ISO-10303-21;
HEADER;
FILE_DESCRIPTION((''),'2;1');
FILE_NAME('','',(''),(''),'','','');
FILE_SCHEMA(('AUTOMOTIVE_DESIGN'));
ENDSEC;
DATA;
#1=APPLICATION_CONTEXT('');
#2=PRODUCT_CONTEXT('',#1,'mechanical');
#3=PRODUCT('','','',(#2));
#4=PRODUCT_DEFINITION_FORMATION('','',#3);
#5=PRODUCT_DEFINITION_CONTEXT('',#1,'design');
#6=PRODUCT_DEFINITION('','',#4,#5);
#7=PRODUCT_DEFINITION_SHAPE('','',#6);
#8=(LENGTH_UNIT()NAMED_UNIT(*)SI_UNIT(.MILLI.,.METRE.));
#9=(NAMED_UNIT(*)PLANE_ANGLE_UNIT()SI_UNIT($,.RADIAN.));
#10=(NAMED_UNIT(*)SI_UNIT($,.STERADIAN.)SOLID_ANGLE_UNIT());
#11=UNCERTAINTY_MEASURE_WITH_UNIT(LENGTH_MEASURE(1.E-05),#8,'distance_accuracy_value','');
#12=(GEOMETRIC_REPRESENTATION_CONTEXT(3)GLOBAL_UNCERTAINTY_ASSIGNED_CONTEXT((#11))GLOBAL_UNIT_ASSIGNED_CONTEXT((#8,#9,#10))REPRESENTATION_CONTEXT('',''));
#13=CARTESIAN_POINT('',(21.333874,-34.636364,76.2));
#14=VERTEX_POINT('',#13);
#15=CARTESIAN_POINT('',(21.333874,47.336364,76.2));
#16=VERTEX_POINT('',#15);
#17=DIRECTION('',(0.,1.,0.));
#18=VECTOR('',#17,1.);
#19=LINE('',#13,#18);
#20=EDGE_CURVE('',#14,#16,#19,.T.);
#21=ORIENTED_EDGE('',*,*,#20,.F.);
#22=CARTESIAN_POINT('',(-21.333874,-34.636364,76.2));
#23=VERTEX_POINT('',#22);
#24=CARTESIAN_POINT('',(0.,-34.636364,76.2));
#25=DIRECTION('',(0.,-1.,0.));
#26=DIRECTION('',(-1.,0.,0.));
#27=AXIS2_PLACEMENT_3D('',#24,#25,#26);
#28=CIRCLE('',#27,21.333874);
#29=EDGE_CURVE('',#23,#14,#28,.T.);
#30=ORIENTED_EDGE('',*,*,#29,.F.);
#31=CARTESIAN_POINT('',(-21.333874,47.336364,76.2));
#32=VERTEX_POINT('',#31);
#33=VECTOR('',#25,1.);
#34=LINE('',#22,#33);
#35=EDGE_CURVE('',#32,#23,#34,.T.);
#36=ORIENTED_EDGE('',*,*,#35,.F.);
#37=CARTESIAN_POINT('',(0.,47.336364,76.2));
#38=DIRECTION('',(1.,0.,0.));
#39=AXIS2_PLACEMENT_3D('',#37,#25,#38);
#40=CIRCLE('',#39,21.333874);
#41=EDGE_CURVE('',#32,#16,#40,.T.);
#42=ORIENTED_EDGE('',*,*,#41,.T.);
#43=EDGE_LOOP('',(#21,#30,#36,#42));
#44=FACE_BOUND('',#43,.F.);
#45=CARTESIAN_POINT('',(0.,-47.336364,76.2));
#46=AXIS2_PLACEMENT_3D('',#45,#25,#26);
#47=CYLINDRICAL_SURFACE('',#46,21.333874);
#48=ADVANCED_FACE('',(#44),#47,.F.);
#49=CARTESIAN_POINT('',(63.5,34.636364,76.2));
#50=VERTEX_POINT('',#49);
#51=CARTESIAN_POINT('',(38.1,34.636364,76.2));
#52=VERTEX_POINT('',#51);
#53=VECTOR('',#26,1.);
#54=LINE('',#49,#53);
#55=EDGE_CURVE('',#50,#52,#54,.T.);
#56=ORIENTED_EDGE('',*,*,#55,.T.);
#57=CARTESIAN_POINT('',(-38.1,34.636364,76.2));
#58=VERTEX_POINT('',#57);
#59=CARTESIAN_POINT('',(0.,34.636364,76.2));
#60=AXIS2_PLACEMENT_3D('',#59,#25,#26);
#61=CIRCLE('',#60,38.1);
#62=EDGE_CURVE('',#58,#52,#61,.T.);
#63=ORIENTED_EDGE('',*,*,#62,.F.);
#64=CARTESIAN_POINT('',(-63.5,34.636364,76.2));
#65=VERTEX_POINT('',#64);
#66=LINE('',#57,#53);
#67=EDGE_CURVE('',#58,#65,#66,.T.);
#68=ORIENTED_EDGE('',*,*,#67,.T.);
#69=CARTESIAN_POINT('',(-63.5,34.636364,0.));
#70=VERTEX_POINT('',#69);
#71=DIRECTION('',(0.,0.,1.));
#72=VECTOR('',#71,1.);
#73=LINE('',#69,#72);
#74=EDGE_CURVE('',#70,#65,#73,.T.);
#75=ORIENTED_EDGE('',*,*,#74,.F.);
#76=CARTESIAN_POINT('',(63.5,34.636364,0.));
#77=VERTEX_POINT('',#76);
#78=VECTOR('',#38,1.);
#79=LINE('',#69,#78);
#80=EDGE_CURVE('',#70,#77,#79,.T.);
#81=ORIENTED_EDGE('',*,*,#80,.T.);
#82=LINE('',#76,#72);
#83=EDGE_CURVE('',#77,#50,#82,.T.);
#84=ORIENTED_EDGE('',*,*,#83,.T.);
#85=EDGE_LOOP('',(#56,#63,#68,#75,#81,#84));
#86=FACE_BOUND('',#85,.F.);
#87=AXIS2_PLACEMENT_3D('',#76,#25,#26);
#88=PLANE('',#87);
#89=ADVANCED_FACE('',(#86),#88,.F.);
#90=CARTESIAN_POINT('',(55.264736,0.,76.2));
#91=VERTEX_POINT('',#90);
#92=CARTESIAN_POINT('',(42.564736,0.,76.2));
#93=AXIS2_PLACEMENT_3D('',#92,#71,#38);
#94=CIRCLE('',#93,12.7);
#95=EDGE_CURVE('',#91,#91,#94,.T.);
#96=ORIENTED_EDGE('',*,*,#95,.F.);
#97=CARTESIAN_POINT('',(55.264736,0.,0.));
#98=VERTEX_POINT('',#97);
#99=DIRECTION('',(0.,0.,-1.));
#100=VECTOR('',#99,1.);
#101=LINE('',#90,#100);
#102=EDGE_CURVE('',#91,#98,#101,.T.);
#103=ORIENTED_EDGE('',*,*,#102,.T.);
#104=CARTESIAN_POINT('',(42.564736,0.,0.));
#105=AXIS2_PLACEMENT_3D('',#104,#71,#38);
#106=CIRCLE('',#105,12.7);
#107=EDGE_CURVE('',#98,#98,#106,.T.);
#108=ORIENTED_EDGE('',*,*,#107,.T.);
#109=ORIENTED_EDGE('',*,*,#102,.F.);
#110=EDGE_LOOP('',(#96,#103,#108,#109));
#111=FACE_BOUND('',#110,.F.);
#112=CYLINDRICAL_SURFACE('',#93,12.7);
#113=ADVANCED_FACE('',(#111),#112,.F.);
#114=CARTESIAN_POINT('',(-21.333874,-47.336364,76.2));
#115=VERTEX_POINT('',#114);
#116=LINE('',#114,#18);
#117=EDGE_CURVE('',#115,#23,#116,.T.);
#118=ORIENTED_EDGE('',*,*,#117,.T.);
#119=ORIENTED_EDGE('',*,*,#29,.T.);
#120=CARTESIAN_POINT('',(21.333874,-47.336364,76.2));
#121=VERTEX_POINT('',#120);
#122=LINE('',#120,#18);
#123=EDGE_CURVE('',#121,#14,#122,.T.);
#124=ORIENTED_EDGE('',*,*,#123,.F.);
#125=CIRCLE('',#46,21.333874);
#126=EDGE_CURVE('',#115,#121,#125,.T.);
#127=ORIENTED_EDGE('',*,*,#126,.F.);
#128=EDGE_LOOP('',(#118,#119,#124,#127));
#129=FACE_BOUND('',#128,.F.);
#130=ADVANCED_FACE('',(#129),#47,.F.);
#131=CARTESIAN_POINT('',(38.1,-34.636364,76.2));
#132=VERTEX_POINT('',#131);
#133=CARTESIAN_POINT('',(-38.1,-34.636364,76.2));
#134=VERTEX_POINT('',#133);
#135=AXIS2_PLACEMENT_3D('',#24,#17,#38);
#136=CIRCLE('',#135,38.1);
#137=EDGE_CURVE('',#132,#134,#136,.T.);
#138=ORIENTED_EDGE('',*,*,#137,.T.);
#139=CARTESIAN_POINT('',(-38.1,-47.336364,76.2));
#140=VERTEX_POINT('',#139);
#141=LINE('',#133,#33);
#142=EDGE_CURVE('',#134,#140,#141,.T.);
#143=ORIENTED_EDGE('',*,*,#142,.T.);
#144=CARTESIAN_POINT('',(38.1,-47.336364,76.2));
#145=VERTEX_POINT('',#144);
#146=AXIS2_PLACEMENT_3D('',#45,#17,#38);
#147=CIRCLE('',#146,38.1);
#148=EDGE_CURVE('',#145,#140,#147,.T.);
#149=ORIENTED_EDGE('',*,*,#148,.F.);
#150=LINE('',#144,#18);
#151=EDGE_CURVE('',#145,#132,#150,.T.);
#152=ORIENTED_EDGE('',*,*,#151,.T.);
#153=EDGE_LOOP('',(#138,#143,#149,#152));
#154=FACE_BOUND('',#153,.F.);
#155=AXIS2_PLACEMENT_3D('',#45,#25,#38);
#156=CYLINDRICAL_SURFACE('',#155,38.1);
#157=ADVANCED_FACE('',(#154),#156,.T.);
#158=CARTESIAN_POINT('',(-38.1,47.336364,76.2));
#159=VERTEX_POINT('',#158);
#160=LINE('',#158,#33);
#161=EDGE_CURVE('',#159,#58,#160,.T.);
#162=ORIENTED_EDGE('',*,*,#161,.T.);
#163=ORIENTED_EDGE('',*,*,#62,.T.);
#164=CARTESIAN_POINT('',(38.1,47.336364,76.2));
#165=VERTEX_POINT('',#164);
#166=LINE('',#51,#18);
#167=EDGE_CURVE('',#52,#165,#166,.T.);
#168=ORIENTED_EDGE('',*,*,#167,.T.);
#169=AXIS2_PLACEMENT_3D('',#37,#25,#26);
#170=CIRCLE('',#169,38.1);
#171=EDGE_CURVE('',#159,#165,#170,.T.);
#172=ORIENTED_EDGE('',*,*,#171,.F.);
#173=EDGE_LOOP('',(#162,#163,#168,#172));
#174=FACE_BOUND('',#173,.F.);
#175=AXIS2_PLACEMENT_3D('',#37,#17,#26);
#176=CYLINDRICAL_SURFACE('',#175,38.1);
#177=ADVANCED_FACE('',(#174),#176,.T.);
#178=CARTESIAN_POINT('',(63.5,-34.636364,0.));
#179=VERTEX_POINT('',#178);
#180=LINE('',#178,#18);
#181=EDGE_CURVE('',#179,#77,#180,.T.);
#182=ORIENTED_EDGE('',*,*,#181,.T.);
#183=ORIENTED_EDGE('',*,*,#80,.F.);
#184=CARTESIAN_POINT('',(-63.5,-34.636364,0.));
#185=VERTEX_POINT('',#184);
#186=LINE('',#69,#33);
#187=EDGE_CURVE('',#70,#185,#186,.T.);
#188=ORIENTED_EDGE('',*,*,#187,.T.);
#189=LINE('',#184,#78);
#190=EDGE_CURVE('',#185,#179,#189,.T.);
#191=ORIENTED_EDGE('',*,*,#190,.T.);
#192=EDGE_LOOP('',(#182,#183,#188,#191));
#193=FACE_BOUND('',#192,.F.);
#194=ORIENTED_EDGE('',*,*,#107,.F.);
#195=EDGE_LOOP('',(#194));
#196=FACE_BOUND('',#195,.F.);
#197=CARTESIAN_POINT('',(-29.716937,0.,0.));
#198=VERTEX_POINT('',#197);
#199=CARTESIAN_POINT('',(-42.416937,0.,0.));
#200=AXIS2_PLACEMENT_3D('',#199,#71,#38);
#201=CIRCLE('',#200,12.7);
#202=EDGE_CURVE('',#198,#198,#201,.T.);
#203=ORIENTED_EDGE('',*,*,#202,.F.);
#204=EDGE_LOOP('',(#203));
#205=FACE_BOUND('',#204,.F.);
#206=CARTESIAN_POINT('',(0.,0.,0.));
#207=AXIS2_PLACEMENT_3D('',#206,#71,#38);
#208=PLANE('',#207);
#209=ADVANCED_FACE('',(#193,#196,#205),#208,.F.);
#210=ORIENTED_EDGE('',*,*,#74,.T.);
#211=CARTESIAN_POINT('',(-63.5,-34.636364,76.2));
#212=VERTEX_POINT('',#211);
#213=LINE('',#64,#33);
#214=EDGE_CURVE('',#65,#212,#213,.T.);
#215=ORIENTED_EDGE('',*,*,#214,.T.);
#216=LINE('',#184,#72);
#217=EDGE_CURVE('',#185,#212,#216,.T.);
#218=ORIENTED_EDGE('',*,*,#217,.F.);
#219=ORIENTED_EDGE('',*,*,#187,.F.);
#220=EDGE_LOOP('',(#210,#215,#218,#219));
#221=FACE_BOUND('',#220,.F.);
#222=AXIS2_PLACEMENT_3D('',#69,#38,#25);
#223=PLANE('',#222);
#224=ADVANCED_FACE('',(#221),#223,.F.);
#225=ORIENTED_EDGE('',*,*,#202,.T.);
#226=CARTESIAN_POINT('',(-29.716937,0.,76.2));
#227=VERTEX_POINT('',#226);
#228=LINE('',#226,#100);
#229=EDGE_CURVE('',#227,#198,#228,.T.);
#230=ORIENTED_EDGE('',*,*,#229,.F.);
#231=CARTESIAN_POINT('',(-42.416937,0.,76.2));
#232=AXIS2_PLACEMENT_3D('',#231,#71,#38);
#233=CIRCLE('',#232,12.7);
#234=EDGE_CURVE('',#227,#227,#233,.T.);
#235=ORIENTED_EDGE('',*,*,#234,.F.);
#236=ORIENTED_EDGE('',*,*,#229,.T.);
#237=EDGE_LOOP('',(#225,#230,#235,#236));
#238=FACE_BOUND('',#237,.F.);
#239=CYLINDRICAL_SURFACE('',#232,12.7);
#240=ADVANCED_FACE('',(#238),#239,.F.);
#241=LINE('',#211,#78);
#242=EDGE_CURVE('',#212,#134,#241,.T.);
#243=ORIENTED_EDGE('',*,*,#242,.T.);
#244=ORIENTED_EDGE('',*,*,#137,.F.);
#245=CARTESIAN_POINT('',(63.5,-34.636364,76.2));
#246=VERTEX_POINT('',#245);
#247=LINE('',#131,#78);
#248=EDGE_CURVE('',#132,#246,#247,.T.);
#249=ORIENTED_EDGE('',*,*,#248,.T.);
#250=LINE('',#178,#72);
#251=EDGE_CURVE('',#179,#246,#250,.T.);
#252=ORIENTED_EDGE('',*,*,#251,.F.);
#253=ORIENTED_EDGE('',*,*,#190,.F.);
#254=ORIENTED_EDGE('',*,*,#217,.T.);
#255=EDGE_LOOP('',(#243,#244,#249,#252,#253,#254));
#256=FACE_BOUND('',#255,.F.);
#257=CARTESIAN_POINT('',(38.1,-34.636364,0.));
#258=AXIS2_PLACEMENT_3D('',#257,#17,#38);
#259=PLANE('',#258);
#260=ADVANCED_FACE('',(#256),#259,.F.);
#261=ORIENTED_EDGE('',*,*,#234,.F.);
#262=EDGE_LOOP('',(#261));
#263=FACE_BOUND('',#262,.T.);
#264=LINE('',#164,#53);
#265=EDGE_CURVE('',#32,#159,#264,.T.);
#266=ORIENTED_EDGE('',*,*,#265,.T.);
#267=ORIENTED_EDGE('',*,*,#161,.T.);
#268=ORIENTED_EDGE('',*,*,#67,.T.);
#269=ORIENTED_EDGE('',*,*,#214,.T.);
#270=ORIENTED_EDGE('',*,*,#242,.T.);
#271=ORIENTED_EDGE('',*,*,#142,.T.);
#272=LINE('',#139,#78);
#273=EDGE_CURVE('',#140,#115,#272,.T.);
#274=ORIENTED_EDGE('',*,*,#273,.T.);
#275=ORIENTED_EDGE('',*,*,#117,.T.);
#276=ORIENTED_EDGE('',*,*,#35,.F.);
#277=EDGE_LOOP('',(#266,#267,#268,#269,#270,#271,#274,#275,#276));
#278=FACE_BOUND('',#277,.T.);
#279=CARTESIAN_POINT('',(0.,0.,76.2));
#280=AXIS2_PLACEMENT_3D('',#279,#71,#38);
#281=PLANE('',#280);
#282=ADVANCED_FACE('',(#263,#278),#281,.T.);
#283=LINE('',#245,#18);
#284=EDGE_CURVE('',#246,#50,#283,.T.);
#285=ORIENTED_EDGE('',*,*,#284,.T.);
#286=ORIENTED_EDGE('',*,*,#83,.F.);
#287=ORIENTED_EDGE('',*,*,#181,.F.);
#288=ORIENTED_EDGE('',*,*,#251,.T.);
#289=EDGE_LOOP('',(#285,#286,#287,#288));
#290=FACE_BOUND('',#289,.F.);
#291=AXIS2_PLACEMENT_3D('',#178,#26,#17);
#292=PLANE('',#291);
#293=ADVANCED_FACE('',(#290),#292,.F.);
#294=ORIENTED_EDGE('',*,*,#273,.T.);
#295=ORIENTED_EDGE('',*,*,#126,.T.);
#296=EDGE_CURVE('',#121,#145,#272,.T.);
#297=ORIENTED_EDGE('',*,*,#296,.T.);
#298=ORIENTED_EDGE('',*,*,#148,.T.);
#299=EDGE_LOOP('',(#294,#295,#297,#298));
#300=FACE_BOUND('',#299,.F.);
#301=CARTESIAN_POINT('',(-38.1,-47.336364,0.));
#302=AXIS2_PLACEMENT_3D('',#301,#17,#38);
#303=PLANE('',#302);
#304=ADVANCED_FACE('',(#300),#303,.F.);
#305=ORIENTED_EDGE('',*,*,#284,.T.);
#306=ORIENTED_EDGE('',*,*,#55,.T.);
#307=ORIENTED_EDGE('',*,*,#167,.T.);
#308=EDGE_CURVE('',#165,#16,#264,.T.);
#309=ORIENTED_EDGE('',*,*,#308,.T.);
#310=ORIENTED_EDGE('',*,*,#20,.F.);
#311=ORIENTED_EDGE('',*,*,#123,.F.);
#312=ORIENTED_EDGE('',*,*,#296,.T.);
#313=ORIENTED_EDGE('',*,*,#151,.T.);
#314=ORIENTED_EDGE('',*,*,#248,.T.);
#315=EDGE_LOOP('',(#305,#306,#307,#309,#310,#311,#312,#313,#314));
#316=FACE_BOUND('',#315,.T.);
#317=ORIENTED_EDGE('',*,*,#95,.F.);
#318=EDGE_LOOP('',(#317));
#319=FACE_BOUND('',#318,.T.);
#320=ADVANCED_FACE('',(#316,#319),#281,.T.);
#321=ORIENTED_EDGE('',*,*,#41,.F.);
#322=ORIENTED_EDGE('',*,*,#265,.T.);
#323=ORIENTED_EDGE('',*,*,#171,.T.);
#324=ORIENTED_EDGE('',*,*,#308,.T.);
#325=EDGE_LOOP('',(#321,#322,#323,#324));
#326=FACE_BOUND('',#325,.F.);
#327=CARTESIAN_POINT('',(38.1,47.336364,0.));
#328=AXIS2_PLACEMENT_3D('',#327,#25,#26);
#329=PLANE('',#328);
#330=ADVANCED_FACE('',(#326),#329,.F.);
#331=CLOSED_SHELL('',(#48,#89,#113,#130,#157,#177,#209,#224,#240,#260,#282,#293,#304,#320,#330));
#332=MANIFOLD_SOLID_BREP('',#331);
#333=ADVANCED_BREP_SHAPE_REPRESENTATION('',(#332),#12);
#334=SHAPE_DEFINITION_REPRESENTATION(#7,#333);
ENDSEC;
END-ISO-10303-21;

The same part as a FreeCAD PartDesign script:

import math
import FreeCAD as App
import Part
import Sketcher

V = App.Vector
Q = App.Units.Quantity

doc = App.newDocument("Part")
body = doc.addObject("PartDesign::Body", "Body")

sketch1 = body.newObject("Sketcher::SketchObject", "Sketch")
sketch1.AttachmentSupport = (doc.getObject("XY_Plane"), [""])
sketch1.MapMode = "FlatFace"
sketch1.addGeometry([
    Part.LineSegment(V(38.1, -34.636364, 0), V(63.5, -34.636364, 0)),
    Part.LineSegment(V(63.5, -34.636364, 0), V(63.5, 34.636364, 0)),
    Part.LineSegment(V(63.5, 34.636364, 0), V(38.1, 34.636364, 0)),
    Part.LineSegment(V(38.1, 34.636364, 0), V(38.1, 47.336364, 0)),
    Part.LineSegment(V(38.1, 47.336364, 0), V(-38.1, 47.336364, 0)),
    Part.LineSegment(V(-38.1, 47.336364, 0), V(-38.1, 34.636364, 0)),
    Part.LineSegment(V(-38.1, 34.636364, 0), V(-63.5, 34.636364, 0)),
    Part.LineSegment(V(-63.5, 34.636364, 0), V(-63.5, -34.636364, 0)),
    Part.LineSegment(V(-63.5, -34.636364, 0), V(-38.1, -34.636364, 0)),
    Part.LineSegment(V(-38.1, -34.636364, 0), V(-38.1, -47.336364, 0)),
    Part.LineSegment(V(-38.1, -47.336364, 0), V(38.1, -47.336364, 0)),
    Part.LineSegment(V(38.1, -47.336364, 0), V(38.1, -34.636364, 0)),
], False)
sketch1.addConstraint([
    Sketcher.Constraint("Coincident", 0, 2, 1, 1),
    Sketcher.Constraint("Coincident", 1, 2, 2, 1),
    Sketcher.Constraint("Coincident", 2, 2, 3, 1),
    Sketcher.Constraint("Coincident", 3, 2, 4, 1),
    Sketcher.Constraint("Coincident", 4, 2, 5, 1),
    Sketcher.Constraint("Coincident", 5, 2, 6, 1),
    Sketcher.Constraint("Coincident", 6, 2, 7, 1),
    Sketcher.Constraint("Coincident", 7, 2, 8, 1),
    Sketcher.Constraint("Coincident", 8, 2, 9, 1),
    Sketcher.Constraint("Coincident", 9, 2, 10, 1),
    Sketcher.Constraint("Coincident", 10, 2, 11, 1),
    Sketcher.Constraint("Coincident", 11, 2, 0, 1),
    Sketcher.Constraint("Horizontal", 0),
    Sketcher.Constraint("Vertical", 1),
    Sketcher.Constraint("Horizontal", 2),
    Sketcher.Constraint("Vertical", 3),
    Sketcher.Constraint("Horizontal", 4),
    Sketcher.Constraint("Vertical", 5),
    Sketcher.Constraint("Horizontal", 6),
    Sketcher.Constraint("Vertical", 7),
    Sketcher.Constraint("Horizontal", 8),
    Sketcher.Constraint("Vertical", 9),
    Sketcher.Constraint("Horizontal", 10),
    Sketcher.Constraint("Vertical", 11),
    Sketcher.Constraint("Symmetric", 0, 2, 6, 2, -1, 1),
    Sketcher.Constraint("Symmetric", 2, 2, 8, 2, -1, 1),
    Sketcher.Constraint("Symmetric", 4, 2, 10, 2, -1, 1),
    Sketcher.Constraint("Symmetric", 2, 2, 5, 2, -2),
    Sketcher.Constraint("DistanceX", 0, 1, 0, 2, Q("1 in")),
    Sketcher.Constraint("DistanceX", 4, 2, 4, 1, Q("3 in")),
    Sketcher.Constraint("DistanceY", 3, 1, 3, 2, Q("0.5 in")),
    Sketcher.Constraint("DistanceY", 1, 1, 1, 2, 69.272727),
])
pad1 = body.newObject("PartDesign::Pad", "Pad")
pad1.Profile = sketch1
pad1.Length = Q("3 in")

sketch2 = body.newObject("Sketcher::SketchObject", "Sketch001")
sketch2.AttachmentSupport = (doc.getObject("XZ_Plane"), [""])
sketch2.MapMode = "FlatFace"
sketch2.AttachmentOffset = App.Placement(V(0, 0, 47.336364), App.Rotation())
sketch2.addGeometry([
    Part.LineSegment(V(38.1, 0, 0), V(38.1, 76.2, 0)),
    Part.ArcOfCircle(Part.Circle(V(0, 76.2, 0), V(0, 0, 1), 38.1), math.radians(180), math.radians(360)),
    Part.LineSegment(V(-38.1, 76.2, 0), V(-38.1, 0, 0)),
    Part.LineSegment(V(-38.1, 0, 0), V(38.1, 0, 0)),
    Part.LineSegment(V(21.333874, 76.2, 0), V(38.1, 76.2, 0)),
    Part.ArcOfCircle(Part.Circle(V(0, 76.2, 0), V(0, 0, 1), 38.1), math.radians(0), math.radians(180)),
    Part.LineSegment(V(-38.1, 76.2, 0), V(-21.333874, 76.2, 0)),
    Part.ArcOfCircle(Part.Circle(V(0, 76.2, 0), V(0, 0, 1), 21.333874), math.radians(0), math.radians(180)),
    Part.ArcOfCircle(Part.Circle(V(0, 76.2, 0), V(0, 0, 1), 21.333874), math.radians(180), math.radians(360)),
    Part.LineSegment(V(21.333874, 76.2, 0), V(-21.333874, 76.2, 0)),
], False)
sketch2.addConstraint([
    Sketcher.Constraint("Tangent", 0, 2, 1, 2),
    Sketcher.Constraint("Tangent", 1, 1, 2, 1),
    Sketcher.Constraint("Coincident", 2, 2, 3, 1),
    Sketcher.Constraint("Coincident", 3, 2, 0, 1),
    Sketcher.Constraint("Coincident", 4, 2, 5, 1),
    Sketcher.Constraint("Coincident", 5, 2, 6, 1),
    Sketcher.Constraint("Coincident", 6, 2, 7, 2),
    Sketcher.Constraint("Coincident", 7, 1, 4, 1),
    Sketcher.Constraint("Coincident", 8, 1, 9, 2),
    Sketcher.Constraint("Coincident", 9, 1, 8, 2),
    Sketcher.Constraint("Vertical", 0),
    Sketcher.Constraint("Vertical", 2),
    Sketcher.Constraint("Horizontal", 3),
    Sketcher.Constraint("Horizontal", 4),
    Sketcher.Constraint("Horizontal", 6),
    Sketcher.Constraint("Horizontal", 9),
    Sketcher.Constraint("Coincident", 5, 3, 1, 3),
    Sketcher.Constraint("Coincident", 7, 3, 1, 3),
    Sketcher.Constraint("Coincident", 8, 3, 1, 3),
    Sketcher.Constraint("Coincident", 4, 2, 0, 2),
    Sketcher.Constraint("Coincident", 8, 1, 6, 2),
    Sketcher.Constraint("Symmetric", 2, 2, 3, 2, -1, 1),
    Sketcher.Constraint("Horizontal", 4, 2, 5, 2),
    Sketcher.Constraint("Equal", 3, 0),
    Sketcher.Constraint("Radius", 1, Q("1.5 in")),
    Sketcher.Constraint("Radius", 7, 21.333874),
])
pocket1 = body.newObject("PartDesign::Pocket", "Pocket")
pocket1.Profile = sketch2
pocket1.Length = Q("0.5 in")

sketch3 = body.newObject("Sketcher::SketchObject", "Sketch002")
sketch3.AttachmentSupport = (doc.getObject("XZ_Plane"), [""])
sketch3.MapMode = "FlatFace"
sketch3.AttachmentOffset = App.Placement(V(0, 0, 34.636364), App.Rotation())
sketch3.addGeometry(Part.Circle(V(0, 76.2, 0), V(0, 0, 1), 21.333874), False)
sketch3.addConstraint([
    Sketcher.Constraint("PointOnObject", 0, 3, -2),
    Sketcher.Constraint("DistanceY", -1, 1, 0, 3, Q("3 in")),
    Sketcher.Constraint("Diameter", 0, 42.667748),
])
pocket2 = body.newObject("PartDesign::Pocket", "Pocket001")
pocket2.Profile = sketch3
pocket2.Length = Q("4 in")

sketch4 = body.newObject("Sketcher::SketchObject", "Sketch003")
sketch4.AttachmentSupport = (doc.getObject("XZ_Plane"), [""])
sketch4.MapMode = "FlatFace"
sketch4.AttachmentOffset = App.Placement(V(0, 0, -47.336364), App.Rotation())
sketch4.addGeometry([
    Part.ArcOfCircle(Part.Circle(V(0, 76.2, 0), V(0, 0, 1), 38.1), math.radians(180), math.radians(360)),
    Part.LineSegment(V(38.1, 76.2, 0), V(38.1, 0, 0)),
    Part.LineSegment(V(38.1, 0, 0), V(-38.1, 0, 0)),
    Part.LineSegment(V(-38.1, 0, 0), V(-38.1, 76.2, 0)),
], False)
sketch4.addConstraint([
    Sketcher.Constraint("Tangent", 0, 2, 1, 1),
    Sketcher.Constraint("Coincident", 1, 2, 2, 1),
    Sketcher.Constraint("Coincident", 2, 2, 3, 1),
    Sketcher.Constraint("Tangent", 3, 2, 0, 1),
    Sketcher.Constraint("Vertical", 1),
    Sketcher.Constraint("Horizontal", 2),
    Sketcher.Constraint("Vertical", 3),
    Sketcher.Constraint("Symmetric", 1, 2, 2, 2, -1, 1),
    Sketcher.Constraint("Equal", 2, 1),
    Sketcher.Constraint("Radius", 0, Q("1.5 in")),
])
pocket3 = body.newObject("PartDesign::Pocket", "Pocket002")
pocket3.Profile = sketch4
pocket3.Length = Q("0.5 in")
pocket3.Reversed = True

sketch5 = body.newObject("Sketcher::SketchObject", "Sketch004")
sketch5.AttachmentSupport = (doc.getObject("XY_Plane"), [""])
sketch5.MapMode = "FlatFace"
sketch5.AttachmentOffset = App.Placement(V(0, 0, 3 * 25.4), App.Rotation())
sketch5.addGeometry([
    Part.Circle(V(42.564736, 0, 0), V(0, 0, 1), 12.7),
    Part.Circle(V(-42.416937, 0, 0), V(0, 0, 1), 12.7),
], False)
sketch5.addConstraint([
    Sketcher.Constraint("Equal", 0, 1),
    Sketcher.Constraint("PointOnObject", 0, 3, -1),
    Sketcher.Constraint("PointOnObject", 1, 3, -1),
    Sketcher.Constraint("Diameter", 0, Q("1 in")),
    Sketcher.Constraint("DistanceX", -1, 1, 0, 3, 42.564736),
    Sketcher.Constraint("DistanceX", 1, 3, -1, 1, 42.416937),
])
pocket4 = body.newObject("PartDesign::Pocket", "Pocket003")
pocket4.Profile = sketch5
pocket4.Length = Q("5 in")

doc.recompute()
